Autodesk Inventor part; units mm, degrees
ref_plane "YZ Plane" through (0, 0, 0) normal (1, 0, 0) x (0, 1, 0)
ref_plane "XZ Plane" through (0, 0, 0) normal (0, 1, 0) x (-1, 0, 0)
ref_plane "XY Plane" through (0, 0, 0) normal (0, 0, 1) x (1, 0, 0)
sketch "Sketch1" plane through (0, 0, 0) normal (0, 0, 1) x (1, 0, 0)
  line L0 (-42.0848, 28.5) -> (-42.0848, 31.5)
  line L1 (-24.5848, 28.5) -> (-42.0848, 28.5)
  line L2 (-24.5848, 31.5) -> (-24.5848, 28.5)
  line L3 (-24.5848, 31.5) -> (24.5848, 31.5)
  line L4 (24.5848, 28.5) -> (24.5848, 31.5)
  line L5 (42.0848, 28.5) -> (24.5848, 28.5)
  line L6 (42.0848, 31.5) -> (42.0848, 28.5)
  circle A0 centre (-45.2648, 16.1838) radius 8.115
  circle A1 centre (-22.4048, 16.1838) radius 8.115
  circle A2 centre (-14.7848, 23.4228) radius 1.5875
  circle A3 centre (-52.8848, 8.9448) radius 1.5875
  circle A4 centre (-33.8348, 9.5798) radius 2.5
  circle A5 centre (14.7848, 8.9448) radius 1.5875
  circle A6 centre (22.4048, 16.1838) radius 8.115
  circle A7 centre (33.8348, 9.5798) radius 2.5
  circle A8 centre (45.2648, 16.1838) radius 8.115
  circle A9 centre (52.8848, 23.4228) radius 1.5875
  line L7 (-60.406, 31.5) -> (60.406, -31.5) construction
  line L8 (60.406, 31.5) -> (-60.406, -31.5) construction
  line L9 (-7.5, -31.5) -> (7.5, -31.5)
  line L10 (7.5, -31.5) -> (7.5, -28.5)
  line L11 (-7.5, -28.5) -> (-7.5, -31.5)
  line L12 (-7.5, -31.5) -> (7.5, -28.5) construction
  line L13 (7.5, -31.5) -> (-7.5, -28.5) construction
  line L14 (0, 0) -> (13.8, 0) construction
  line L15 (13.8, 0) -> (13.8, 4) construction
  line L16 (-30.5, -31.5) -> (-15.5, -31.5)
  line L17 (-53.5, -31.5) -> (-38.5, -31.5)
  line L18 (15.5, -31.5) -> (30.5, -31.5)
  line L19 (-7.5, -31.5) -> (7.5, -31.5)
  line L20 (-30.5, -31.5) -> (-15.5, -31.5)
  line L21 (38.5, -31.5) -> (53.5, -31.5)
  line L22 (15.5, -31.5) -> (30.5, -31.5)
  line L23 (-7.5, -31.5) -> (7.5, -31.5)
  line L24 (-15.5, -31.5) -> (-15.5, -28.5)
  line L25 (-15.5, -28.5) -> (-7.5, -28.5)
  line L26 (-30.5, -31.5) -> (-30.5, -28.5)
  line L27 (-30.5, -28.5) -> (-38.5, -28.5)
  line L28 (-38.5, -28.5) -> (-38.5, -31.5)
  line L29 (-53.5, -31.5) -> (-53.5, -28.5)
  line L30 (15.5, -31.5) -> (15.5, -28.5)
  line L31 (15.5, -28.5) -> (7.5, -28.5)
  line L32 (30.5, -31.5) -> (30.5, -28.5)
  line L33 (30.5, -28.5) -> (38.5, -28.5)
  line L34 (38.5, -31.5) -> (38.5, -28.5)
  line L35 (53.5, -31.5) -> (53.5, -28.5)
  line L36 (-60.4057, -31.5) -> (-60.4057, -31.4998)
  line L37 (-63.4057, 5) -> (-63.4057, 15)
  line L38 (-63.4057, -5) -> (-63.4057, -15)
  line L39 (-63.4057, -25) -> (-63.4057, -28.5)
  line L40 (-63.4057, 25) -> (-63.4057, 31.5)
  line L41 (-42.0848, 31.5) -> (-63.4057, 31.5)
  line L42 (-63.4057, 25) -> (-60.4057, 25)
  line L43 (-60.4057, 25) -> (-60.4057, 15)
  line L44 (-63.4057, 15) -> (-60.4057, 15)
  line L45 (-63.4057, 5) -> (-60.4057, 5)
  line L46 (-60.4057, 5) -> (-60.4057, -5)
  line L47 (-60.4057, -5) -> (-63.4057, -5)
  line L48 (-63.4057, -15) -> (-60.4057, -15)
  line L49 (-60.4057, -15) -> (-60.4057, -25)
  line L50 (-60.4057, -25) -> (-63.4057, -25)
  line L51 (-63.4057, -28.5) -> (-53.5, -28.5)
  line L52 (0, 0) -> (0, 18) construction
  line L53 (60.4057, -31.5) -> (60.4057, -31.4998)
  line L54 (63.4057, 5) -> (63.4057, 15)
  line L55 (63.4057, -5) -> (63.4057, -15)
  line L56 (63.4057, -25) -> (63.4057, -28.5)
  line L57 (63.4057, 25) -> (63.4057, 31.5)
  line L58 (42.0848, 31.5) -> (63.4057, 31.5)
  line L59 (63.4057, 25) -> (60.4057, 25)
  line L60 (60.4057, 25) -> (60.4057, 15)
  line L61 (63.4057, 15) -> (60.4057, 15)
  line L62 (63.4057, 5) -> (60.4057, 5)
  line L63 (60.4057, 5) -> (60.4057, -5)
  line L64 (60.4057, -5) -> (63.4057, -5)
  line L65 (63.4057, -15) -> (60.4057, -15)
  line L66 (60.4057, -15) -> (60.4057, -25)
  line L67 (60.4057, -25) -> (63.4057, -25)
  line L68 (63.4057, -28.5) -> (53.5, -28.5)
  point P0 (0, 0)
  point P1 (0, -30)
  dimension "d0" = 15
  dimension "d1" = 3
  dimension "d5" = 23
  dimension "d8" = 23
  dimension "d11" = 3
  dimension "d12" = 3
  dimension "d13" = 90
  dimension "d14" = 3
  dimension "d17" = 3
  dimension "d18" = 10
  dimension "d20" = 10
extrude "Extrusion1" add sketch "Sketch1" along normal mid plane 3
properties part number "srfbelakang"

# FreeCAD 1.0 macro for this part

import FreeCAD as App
import Part
import Sketcher
from FreeCAD import Vector
Q = App.Units.Quantity


def add_polygon(sketch, points):
    """Adds a closed chain of lines whose ends are joined by coincident constraints."""
    first, n = sketch.GeometryCount, len(points)
    for a, b in zip(points, points[1:] + points[:1]):
        sketch.addGeometry(Part.LineSegment(App.Vector(*a, 0), App.Vector(*b, 0)), False)
    for i in range(n):
        sketch.addConstraint(Sketcher.Constraint("Coincident", first + i, 2, first + (i + 1) % n, 1))

doc = App.newDocument("Part")
body = doc.addObject("PartDesign::Body", "Body")

# Sketch on XY plane
sketch1 = body.newObject("Sketcher::SketchObject", "Sketch")
sketch1.AttachmentSupport = (doc.getObject("XY_Plane"), [""])
sketch1.MapMode = "FlatFace"
add_polygon(sketch1, [(-24.6, 28.5), (-42.1, 28.5), (-42.1, 31.5), (-63.4, 31.5), (-63.4, 25), (-60.4, 25), (-60.4, 15), (-63.4, 15), (-63.4, 5), (-60.4, 5), (-60.4, -5), (-63.4, -5), (-63.4, -15), (-60.4, -15), (-60.4, -25), (-63.4, -25), (-63.4, -28.5), (-53.5, -28.5), (-53.5, -31.5), (-38.5, -31.5), (-38.5, -28.5), (-30.5, -28.5), (-30.5, -31.5), (-15.5, -31.5), (-15.5, -28.5), (-7.5, -28.5), (-7.5, -31.5), (7.5, -31.5), (7.5, -28.5), (15.5, -28.5), (15.5, -31.5), (30.5, -31.5), (30.5, -28.5), (38.5, -28.5), (38.5, -31.5), (53.5, -31.5), (53.5, -28.5), (63.4, -28.5), (63.4, -25), (60.4, -25), (60.4, -15), (63.4, -15), (63.4, -5), (60.4, -5), (60.4, 5), (63.4, 5), (63.4, 15), (60.4, 15), (60.4, 25), (63.4, 25), (63.4, 31.5), (42.1, 31.5), (42.1, 28.5), (24.6, 28.5), (24.6, 31.5), (-24.6, 31.5)])  # lines 0-55
sketch1.addGeometry(Part.Circle(Vector(-52.9, 8.9, 0), Vector(0, 0, 1), 1.6), False)  # 56
sketch1.addGeometry(Part.Circle(Vector(-33.8, 9.6, 0), Vector(0, 0, 1), 2.5), False)  # 57
sketch1.addGeometry(Part.Circle(Vector(-45.3, 16.2, 0), Vector(0, 0, 1), 8.1), False)  # 58
sketch1.addGeometry(Part.Circle(Vector(-22.4, 16.2, 0), Vector(0, 0, 1), 8.1), False)  # 59
sketch1.addGeometry(Part.Circle(Vector(-14.8, 23.4, 0), Vector(0, 0, 1), 1.6), False)  # 60
sketch1.addGeometry(Part.Circle(Vector(14.8, 8.9, 0), Vector(0, 0, 1), 1.6), False)  # 61
sketch1.addGeometry(Part.Circle(Vector(33.8, 9.6, 0), Vector(0, 0, 1), 2.5), False)  # 62
sketch1.addGeometry(Part.Circle(Vector(22.4, 16.2, 0), Vector(0, 0, 1), 8.1), False)  # 63
sketch1.addGeometry(Part.Circle(Vector(45.3, 16.2, 0), Vector(0, 0, 1), 8.1), False)  # 64
sketch1.addGeometry(Part.Circle(Vector(52.9, 23.4, 0), Vector(0, 0, 1), 1.6), False)  # 65
sketch1.addConstraint([
    Sketcher.Constraint("Horizontal", 0),
    Sketcher.Constraint("Vertical", 1),
    Sketcher.Constraint("Horizontal", 2),
    Sketcher.Constraint("Vertical", 3),
    Sketcher.Constraint("Horizontal", 4),
    Sketcher.Constraint("Vertical", 5),
    Sketcher.Constraint("Horizontal", 6),
    Sketcher.Constraint("Vertical", 7),
    Sketcher.Constraint("Horizontal", 8),
    Sketcher.Constraint("Vertical", 9),
    Sketcher.Constraint("Horizontal", 10),
    Sketcher.Constraint("Vertical", 11),
    Sketcher.Constraint("Horizontal", 12),
    Sketcher.Constraint("Vertical", 13),
    Sketcher.Constraint("Horizontal", 14),
    Sketcher.Constraint("Vertical", 15),
    Sketcher.Constraint("Horizontal", 16),
    Sketcher.Constraint("Vertical", 17),
    Sketcher.Constraint("Horizontal", 18),
    Sketcher.Constraint("Vertical", 19),
    Sketcher.Constraint("Horizontal", 20),
    Sketcher.Constraint("Vertical", 21),
    Sketcher.Constraint("Horizontal", 22),
    Sketcher.Constraint("Vertical", 23),
    Sketcher.Constraint("Horizontal", 24),
    Sketcher.Constraint("Vertical", 25),
    Sketcher.Constraint("Horizontal", 26),
    Sketcher.Constraint("Vertical", 27),
    Sketcher.Constraint("Horizontal", 28),
    Sketcher.Constraint("Vertical", 29),
    Sketcher.Constraint("Horizontal", 30),
    Sketcher.Constraint("Vertical", 31),
    Sketcher.Constraint("Horizontal", 32),
    Sketcher.Constraint("Vertical", 33),
    Sketcher.Constraint("Horizontal", 34),
    Sketcher.Constraint("Vertical", 35),
    Sketcher.Constraint("Horizontal", 36),
    Sketcher.Constraint("Vertical", 37),
    Sketcher.Constraint("Horizontal", 38),
    Sketcher.Constraint("Vertical", 39),
    Sketcher.Constraint("Horizontal", 40),
    Sketcher.Constraint("Vertical", 41),
    Sketcher.Constraint("Horizontal", 42),
    Sketcher.Constraint("Vertical", 43),
    Sketcher.Constraint("Horizontal", 44),
    Sketcher.Constraint("Vertical", 45),
    Sketcher.Constraint("Horizontal", 46),
    Sketcher.Constraint("Vertical", 47),
    Sketcher.Constraint("Horizontal", 48),
    Sketcher.Constraint("Vertical", 49),
    Sketcher.Constraint("Horizontal", 50),
    Sketcher.Constraint("Vertical", 51),
    Sketcher.Constraint("Horizontal", 52),
    Sketcher.Constraint("Vertical", 53),
    Sketcher.Constraint("Horizontal", 54),
    Sketcher.Constraint("Vertical", 55),
    Sketcher.Constraint("Equal", 58, 59),
    Sketcher.Constraint("Equal", 56, 60),
    Sketcher.Constraint("Equal", 60, 61),
    Sketcher.Constraint("Equal", 57, 62),
    Sketcher.Constraint("Equal", 59, 63),
    Sketcher.Constraint("Equal", 63, 64),
    Sketcher.Constraint("Equal", 61, 65),
    Sketcher.Constraint("Symmetric", 3, 2, 37, 2, -1, 1),
    Sketcher.Constraint("Symmetric", 5, 2, 39, 2, -1, 1),
    Sketcher.Constraint("Symmetric", 7, 2, 41, 2, -1, 1),
    Sketcher.Constraint("Symmetric", 9, 2, 43, 2, -1, 1),
    Sketcher.Constraint("Symmetric", 11, 2, 45, 2, -1, 1),
    Sketcher.Constraint("Symmetric", 13, 2, 47, 2, -1, 1),
    Sketcher.Constraint("Symmetric", 57, 3, 62, 3, -2),
    Sketcher.Constraint("Symmetric", 59, 3, 63, 3, -2),
    Sketcher.Constraint("Symmetric", 58, 3, 64, 3, -2),
    Sketcher.Constraint("Symmetric", 24, 2, 27, 2, -2),
    Sketcher.Constraint("Symmetric", 22, 2, 29, 2, -2),
    Sketcher.Constraint("Symmetric", 20, 2, 31, 2, -2),
    Sketcher.Constraint("Symmetric", 18, 2, 33, 2, -2),
    Sketcher.Constraint("Symmetric", 16, 2, 35, 2, -2),
    Sketcher.Constraint("Symmetric", 14, 2, 37, 2, -2),
    Sketcher.Constraint("Symmetric", 12, 2, 39, 2, -2),
    Sketcher.Constraint("Symmetric", 10, 2, 41, 2, -2),
    Sketcher.Constraint("Symmetric", 2, 2, 49, 2, -2),
    Sketcher.Constraint("Symmetric", 0, 2, 51, 2, -2),
    Sketcher.Constraint("Horizontal", 58, 3, 59, 3),
    Sketcher.Constraint("Horizontal", 56, 3, 61, 3),
    Sketcher.Constraint("Horizontal", 60, 3, 65, 3),
    Sketcher.Constraint("Horizontal", 16, 2, 19, 2),
    Sketcher.Constraint("Horizontal", 18, 2, 21, 2),
    Sketcher.Constraint("Horizontal", 20, 2, 23, 2),
    Sketcher.Constraint("Horizontal", 22, 2, 25, 2),
    Sketcher.Constraint("Horizontal", 50, 2, 53, 2),
    Sketcher.Constraint("Vertical", 3, 2, 6, 2),
    Sketcher.Constraint("Vertical", 5, 2, 8, 2),
    Sketcher.Constraint("Equal", 18, 22),
    Sketcher.Constraint("Equal", 20, 24),
    Sketcher.Constraint("Equal", 22, 26),
    Sketcher.Constraint("Equal", 0, 52),
    Sketcher.Constraint("Equal", 48, 1),
    Sketcher.Constraint("Equal", 5, 7),
    Sketcher.Constraint("Equal", 7, 9),
    Sketcher.Constraint("Equal", 1, 17),
    Sketcher.Constraint("DistanceX", 4, 1, 4, 2, Q("3 mm")),
    Sketcher.Constraint("DistanceX", 18, 1, 18, 2, Q("15 mm")),
    Sketcher.Constraint("DistanceY", 5, 2, 5, 1, Q("10 mm")),
    Sketcher.Constraint("Diameter", 57, Q("5 mm")),
    Sketcher.Constraint("Diameter", 58, Q("16.23 mm")),
    Sketcher.Constraint("DistanceX", 20, 1, 20, 2, Q("8 mm")),
    Sketcher.Constraint("Diameter", 56, Q("3.175 mm")),
    Sketcher.Constraint("DistanceX", 0, 2, 0, 1, Q("17.5 mm")),
    Sketcher.Constraint("DistanceY", 3, 2, 3, 1, Q("6.5 mm")),
    Sketcher.Constraint("DistanceY", 15, 2, 15, 1, Q("3.5 mm")),
    Sketcher.Constraint("DistanceX", 2, 2, 2, 1, Q("21.321 mm")),
    Sketcher.Constraint("DistanceX", 16, 1, 16, 2, Q("9.9057 mm")),
    Sketcher.Constraint("DistanceX", 56, 3, -1, 1, Q("52.8848 mm")),
    Sketcher.Constraint("DistanceY", -1, 1, 56, 3, Q("8.9448 mm")),
    Sketcher.Constraint("DistanceX", 57, 3, -1, 1, Q("33.8348 mm")),
    Sketcher.Constraint("DistanceY", -1, 1, 57, 3, Q("9.5798 mm")),
    Sketcher.Constraint("DistanceX", 58, 3, -1, 1, Q("45.2648 mm")),
    Sketcher.Constraint("DistanceY", -1, 1, 58, 3, Q("16.1838 mm")),
    Sketcher.Constraint("DistanceX", 59, 3, -1, 1, Q("22.4048 mm")),
    Sketcher.Constraint("DistanceX", 60, 3, -1, 1, Q("14.7848 mm")),
    Sketcher.Constraint("DistanceY", -1, 1, 60, 3, Q("23.4228 mm")),
    Sketcher.Constraint("DistanceX", -1, 1, 61, 3, Q("14.7848 mm")),
    Sketcher.Constraint("DistanceX", -1, 1, 65, 3, Q("52.8848 mm")),
])
pad1 = body.newObject("PartDesign::Pad", "Pad")
pad1.Profile = sketch1
pad1.Length = 3
pad1.Midplane = True

doc.recompute()
